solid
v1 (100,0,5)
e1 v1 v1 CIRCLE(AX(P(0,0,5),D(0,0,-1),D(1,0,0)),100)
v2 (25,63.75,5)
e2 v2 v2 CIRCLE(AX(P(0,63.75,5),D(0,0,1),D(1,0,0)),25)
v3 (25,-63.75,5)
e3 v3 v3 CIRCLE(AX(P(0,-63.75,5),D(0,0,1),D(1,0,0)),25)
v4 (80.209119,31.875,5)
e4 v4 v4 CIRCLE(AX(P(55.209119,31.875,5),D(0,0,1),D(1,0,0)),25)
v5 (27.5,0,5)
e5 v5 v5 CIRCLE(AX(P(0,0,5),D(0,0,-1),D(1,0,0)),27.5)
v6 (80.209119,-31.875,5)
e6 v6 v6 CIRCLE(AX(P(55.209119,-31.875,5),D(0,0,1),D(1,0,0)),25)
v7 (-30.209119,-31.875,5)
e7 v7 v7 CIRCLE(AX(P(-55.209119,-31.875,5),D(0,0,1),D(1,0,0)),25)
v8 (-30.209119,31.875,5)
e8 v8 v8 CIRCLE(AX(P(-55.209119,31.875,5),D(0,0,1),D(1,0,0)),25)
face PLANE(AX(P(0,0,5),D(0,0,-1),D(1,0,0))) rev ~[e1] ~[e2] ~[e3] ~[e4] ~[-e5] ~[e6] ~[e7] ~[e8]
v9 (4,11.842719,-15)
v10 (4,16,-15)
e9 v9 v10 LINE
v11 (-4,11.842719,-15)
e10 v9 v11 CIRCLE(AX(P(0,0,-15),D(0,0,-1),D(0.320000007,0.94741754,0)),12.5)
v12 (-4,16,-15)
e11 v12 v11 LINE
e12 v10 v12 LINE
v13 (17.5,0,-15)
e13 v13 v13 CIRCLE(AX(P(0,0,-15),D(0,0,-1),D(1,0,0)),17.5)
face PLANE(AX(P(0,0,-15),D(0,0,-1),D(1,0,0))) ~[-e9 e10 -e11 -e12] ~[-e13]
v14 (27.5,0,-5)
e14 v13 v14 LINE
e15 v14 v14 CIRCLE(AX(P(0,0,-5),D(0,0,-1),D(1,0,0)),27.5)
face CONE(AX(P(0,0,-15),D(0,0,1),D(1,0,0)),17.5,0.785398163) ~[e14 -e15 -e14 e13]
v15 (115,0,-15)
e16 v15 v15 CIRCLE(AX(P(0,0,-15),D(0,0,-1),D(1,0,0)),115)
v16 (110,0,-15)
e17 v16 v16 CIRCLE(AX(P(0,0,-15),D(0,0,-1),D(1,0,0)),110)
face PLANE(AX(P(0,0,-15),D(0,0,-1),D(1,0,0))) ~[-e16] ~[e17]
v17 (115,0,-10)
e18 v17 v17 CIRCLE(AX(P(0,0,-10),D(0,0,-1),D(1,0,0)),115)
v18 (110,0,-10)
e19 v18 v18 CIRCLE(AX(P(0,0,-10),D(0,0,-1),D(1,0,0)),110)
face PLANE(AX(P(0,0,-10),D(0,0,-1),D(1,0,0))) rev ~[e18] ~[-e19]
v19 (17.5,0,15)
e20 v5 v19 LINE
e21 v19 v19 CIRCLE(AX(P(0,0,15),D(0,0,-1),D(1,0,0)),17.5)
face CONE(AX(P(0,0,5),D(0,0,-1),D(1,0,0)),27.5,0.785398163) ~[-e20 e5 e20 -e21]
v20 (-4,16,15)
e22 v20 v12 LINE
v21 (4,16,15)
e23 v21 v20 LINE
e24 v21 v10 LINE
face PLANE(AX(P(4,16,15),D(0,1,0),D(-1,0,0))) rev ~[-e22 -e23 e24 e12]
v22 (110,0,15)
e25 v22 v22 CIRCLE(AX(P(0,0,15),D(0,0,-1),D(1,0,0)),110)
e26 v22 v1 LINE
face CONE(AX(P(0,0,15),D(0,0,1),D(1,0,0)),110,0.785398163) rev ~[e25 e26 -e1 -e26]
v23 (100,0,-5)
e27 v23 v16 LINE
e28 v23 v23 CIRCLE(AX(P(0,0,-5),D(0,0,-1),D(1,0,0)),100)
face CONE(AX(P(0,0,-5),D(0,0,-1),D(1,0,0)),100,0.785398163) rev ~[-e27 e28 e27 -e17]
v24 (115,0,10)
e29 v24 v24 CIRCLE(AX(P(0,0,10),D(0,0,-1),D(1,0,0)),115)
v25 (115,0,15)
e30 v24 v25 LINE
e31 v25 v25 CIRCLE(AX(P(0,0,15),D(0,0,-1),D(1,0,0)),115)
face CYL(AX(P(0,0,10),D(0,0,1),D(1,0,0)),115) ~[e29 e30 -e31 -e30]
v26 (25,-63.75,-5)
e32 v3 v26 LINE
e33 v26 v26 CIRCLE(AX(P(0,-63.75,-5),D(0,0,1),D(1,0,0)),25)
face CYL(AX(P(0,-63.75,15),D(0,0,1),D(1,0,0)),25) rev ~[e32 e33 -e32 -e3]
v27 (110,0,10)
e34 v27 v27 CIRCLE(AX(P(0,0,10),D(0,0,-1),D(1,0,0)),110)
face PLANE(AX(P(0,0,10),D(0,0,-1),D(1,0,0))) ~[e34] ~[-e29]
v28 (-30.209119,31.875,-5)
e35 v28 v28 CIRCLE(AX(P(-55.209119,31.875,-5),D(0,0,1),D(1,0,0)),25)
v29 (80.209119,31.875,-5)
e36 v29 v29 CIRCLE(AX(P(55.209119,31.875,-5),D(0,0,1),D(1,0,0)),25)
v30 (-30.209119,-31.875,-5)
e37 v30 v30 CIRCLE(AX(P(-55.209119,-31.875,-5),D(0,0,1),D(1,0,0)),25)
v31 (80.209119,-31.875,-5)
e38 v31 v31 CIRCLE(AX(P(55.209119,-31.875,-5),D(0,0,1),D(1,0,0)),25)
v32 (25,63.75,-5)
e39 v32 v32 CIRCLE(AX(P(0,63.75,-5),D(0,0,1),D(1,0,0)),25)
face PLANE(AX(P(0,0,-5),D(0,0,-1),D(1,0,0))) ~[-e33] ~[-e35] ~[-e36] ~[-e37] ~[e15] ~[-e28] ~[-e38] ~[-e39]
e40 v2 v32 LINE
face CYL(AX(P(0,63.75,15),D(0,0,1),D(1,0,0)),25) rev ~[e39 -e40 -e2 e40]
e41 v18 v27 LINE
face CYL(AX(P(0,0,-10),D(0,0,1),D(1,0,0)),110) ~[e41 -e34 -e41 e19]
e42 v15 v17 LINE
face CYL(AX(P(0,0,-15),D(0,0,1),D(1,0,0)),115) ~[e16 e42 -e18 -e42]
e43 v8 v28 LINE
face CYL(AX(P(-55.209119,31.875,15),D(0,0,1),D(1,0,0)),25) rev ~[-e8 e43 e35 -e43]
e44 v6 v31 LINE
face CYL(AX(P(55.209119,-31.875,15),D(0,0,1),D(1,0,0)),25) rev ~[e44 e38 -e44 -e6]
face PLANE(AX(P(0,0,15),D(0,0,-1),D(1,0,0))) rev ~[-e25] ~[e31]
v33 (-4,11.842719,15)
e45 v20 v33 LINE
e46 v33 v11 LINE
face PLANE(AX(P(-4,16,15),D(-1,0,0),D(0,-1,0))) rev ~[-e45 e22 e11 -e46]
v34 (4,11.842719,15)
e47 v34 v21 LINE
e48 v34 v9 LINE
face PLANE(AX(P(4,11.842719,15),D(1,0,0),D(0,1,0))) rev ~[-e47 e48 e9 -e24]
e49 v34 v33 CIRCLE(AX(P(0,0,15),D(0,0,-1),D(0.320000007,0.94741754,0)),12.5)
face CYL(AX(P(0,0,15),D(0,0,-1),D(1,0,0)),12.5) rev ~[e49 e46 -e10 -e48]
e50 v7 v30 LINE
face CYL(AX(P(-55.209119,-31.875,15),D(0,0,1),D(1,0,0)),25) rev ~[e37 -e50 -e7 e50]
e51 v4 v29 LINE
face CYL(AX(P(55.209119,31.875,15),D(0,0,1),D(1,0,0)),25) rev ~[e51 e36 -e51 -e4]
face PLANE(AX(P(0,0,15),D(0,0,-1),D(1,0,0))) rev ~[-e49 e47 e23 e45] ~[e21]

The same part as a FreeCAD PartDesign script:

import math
import FreeCAD as App
import Part
import Sketcher

doc = App.newDocument("Part")
body = doc.addObject("PartDesign::Body", "Body")

# Sketch on XZ plane
sketch1 = doc.addObject("Sketcher::SketchObject", "Sketch")
body.addObject(sketch1)
sketch1.AttachmentSupport = (doc.XZ_Plane, [""])
sketch1.MapMode = "FlatFace"
sketch1.addGeometry([
    Part.LineSegment(App.Vector(17.5, 15, 0), App.Vector(12.5, 15, 0)),  # 0
    Part.LineSegment(App.Vector(12.5, 15, 0), App.Vector(12.5, -15, 0)),  # 1
    Part.LineSegment(App.Vector(12.5, -15, 0), App.Vector(17.5, -15, 0)),  # 2
    Part.LineSegment(App.Vector(17.5, -15, 0), App.Vector(27.5, -5, 0)),  # 3
    Part.LineSegment(App.Vector(27.5, -5, 0), App.Vector(100, -5, 0)),  # 4
    Part.LineSegment(App.Vector(100, -5, 0), App.Vector(110, -15, 0)),  # 5
    Part.LineSegment(App.Vector(110, -15, 0), App.Vector(115, -15, 0)),  # 6
    Part.LineSegment(App.Vector(115, -15, 0), App.Vector(115, -10, 0)),  # 7
    Part.LineSegment(App.Vector(115, -10, 0), App.Vector(110, -10, 0)),  # 8
    Part.LineSegment(App.Vector(110, -10, 0), App.Vector(110, 10, 0)),  # 9
    Part.LineSegment(App.Vector(110, 10, 0), App.Vector(115, 10, 0)),  # 10
    Part.LineSegment(App.Vector(115, 10, 0), App.Vector(115, 15, 0)),  # 11
    Part.LineSegment(App.Vector(115, 15, 0), App.Vector(110, 15, 0)),  # 12
    Part.LineSegment(App.Vector(110, 15, 0), App.Vector(100, 5, 0)),  # 13
    Part.LineSegment(App.Vector(100, 5, 0), App.Vector(27.5, 5, 0)),  # 14
    Part.LineSegment(App.Vector(27.5, 5, 0), App.Vector(17.5, 15, 0)),  # 15
], False)
sketch1.addConstraint([
    Sketcher.Constraint("Coincident", 0, 2, 1, 1),
    Sketcher.Constraint("Coincident", 1, 2, 2, 1),
    Sketcher.Constraint("Coincident", 2, 2, 3, 1),
    Sketcher.Constraint("Coincident", 3, 2, 4, 1),
    Sketcher.Constraint("Coincident", 4, 2, 5, 1),
    Sketcher.Constraint("Coincident", 5, 2, 6, 1),
    Sketcher.Constraint("Coincident", 6, 2, 7, 1),
    Sketcher.Constraint("Coincident", 7, 2, 8, 1),
    Sketcher.Constraint("Coincident", 8, 2, 9, 1),
    Sketcher.Constraint("Coincident", 9, 2, 10, 1),
    Sketcher.Constraint("Coincident", 10, 2, 11, 1),
    Sketcher.Constraint("Coincident", 11, 2, 12, 1),
    Sketcher.Constraint("Coincident", 12, 2, 13, 1),
    Sketcher.Constraint("Coincident", 13, 2, 14, 1),
    Sketcher.Constraint("Coincident", 14, 2, 15, 1),
    Sketcher.Constraint("Coincident", 15, 2, 0, 1),
    Sketcher.Constraint("Horizontal", 0),
    Sketcher.Constraint("Vertical", 1),
    Sketcher.Constraint("Horizontal", 2),
    Sketcher.Constraint("Horizontal", 4),
    Sketcher.Constraint("Horizontal", 6),
    Sketcher.Constraint("Vertical", 7),
    Sketcher.Constraint("Horizontal", 8),
    Sketcher.Constraint("Vertical", 9),
    Sketcher.Constraint("Horizontal", 10),
    Sketcher.Constraint("Vertical", 11),
    Sketcher.Constraint("Horizontal", 12),
    Sketcher.Constraint("Horizontal", 14),
    Sketcher.Constraint("Symmetric", 7, 2, 10, 2, -1),
    Sketcher.Constraint("Symmetric", 5, 2, 12, 2, -1),
    Sketcher.Constraint("Symmetric", 4, 2, 13, 2, -1),
    Sketcher.Constraint("Symmetric", 2, 2, 15, 2, -1),
    Sketcher.Constraint("Perpendicular", 3, 5),
    Sketcher.Constraint("Perpendicular", 5, 13),
    Sketcher.Constraint("Perpendicular", 13, 15),
    Sketcher.Constraint("Horizontal", 2, 2, 5, 2),
    Sketcher.Constraint("Vertical", 5, 2, 8, 2),
    Sketcher.Constraint("Equal", 2, 6),
    Sketcher.Constraint("Equal", 12, 7),
    Sketcher.Constraint("DistanceX", 0, 2, 0, 1, 5.0),
    Sketcher.Constraint("DistanceY", 1, 2, 1, 1, 30.0),
    Sketcher.Constraint("DistanceX", 4, 1, 4, 2, 72.5),
    Sketcher.Constraint("DistanceY", 3, 2, -1, 1, 5.0),
    Sketcher.Constraint("DistanceX", -1, 1, 4, 2, 100.0),
])
revolution = doc.addObject("PartDesign::Revolution", "Revolution")
body.addObject(revolution)
revolution.Profile = sketch1
revolution.ReferenceAxis = (sketch1, ["V_Axis"])
revolution.Angle = 360

# Sketch on XY plane
sketch2 = doc.addObject("Sketcher::SketchObject", "Sketch001")
body.addObject(sketch2)
sketch2.AttachmentSupport = (doc.XY_Plane, [""])
sketch2.MapMode = "FlatFace"
sketch2.AttachmentOffset = App.Placement(App.Vector(0, 0, 15), App.Rotation())
sketch2.addGeometry([
    Part.Circle(App.Vector(-55.209119, 31.875, 0), App.Vector(0, 0, 1), 25),  # 0
    Part.Circle(App.Vector(0, 63.75, 0), App.Vector(0, 0, 1), 25),  # 1
    Part.Circle(App.Vector(55.209119, 31.875, 0), App.Vector(0, 0, 1), 25),  # 2
    Part.Circle(App.Vector(55.209119, -31.875, 0), App.Vector(0, 0, 1), 25),  # 3
    Part.Circle(App.Vector(0, -63.75, 0), App.Vector(0, 0, 1), 25),  # 4
    Part.Circle(App.Vector(-55.209119, -31.875, 0), App.Vector(0, 0, 1), 25),  # 5
    Part.LineSegment(App.Vector(-4, 16, 0), App.Vector(-4, 11.842719, 0)),  # 6
    Part.ArcOfCircle(Part.Circle(App.Vector(0, 0.000005, 0), App.Vector(0, 0, 1), 12.499995), math.radians(71.337067), math.radians(108.662933)),  # 7
    Part.LineSegment(App.Vector(4, 11.842719, 0), App.Vector(4, 16, 0)),  # 8
    Part.LineSegment(App.Vector(4, 16, 0), App.Vector(-4, 16, 0)),  # 9
], False)
sketch2.addConstraint([
    Sketcher.Constraint("Coincident", 6, 2, 7, 2),
    Sketcher.Constraint("Coincident", 7, 1, 8, 1),
    Sketcher.Constraint("Coincident", 8, 2, 9, 1),
    Sketcher.Constraint("Coincident", 9, 2, 6, 1),
    Sketcher.Constraint("Vertical", 6),
    Sketcher.Constraint("Vertical", 8),
    Sketcher.Constraint("Horizontal", 9),
    Sketcher.Constraint("Coincident", 7, 3, -1, 1),
    Sketcher.Constraint("Equal", 0, 1),
    Sketcher.Constraint("Equal", 1, 2),
    Sketcher.Constraint("Equal", 2, 3),
    Sketcher.Constraint("Equal", 3, 4),
    Sketcher.Constraint("Equal", 4, 5),
    Sketcher.Constraint("Symmetric", 0, 3, 3, 3, -1, 1),
    Sketcher.Constraint("Symmetric", 1, 3, 4, 3, -1, 1),
    Sketcher.Constraint("Symmetric", 2, 3, 5, 3, -1, 1),
    Sketcher.Constraint("Symmetric", 0, 3, 2, 3, -2),
    Sketcher.Constraint("PointOnObject", 1, 3, -2),
    Sketcher.Constraint("Horizontal", 6, 2, 7, 1),
    Sketcher.Constraint("Diameter", 0, 50.0),
    Sketcher.Constraint("DistanceX", 9, 2, 9, 1, 8.0),
    Sketcher.Constraint("DistanceY", -1, 1, 8, 2, 16.0),
    Sketcher.Constraint("DistanceY", 4, 3, 1, 3, 127.5),
    Sketcher.Constraint("DistanceY", 3, 3, 2, 3, 63.75),
    Sketcher.Constraint("Radius", 7, 12.499995),
    Sketcher.Constraint("DistanceX", 0, 3, -1, 1, 55.209119),
])
pocket1 = doc.addObject("PartDesign::Pocket", "Pocket")
body.addObject(pocket1)
pocket1.Profile = sketch2
pocket1.Type = "ThroughAll"

doc.recompute()
